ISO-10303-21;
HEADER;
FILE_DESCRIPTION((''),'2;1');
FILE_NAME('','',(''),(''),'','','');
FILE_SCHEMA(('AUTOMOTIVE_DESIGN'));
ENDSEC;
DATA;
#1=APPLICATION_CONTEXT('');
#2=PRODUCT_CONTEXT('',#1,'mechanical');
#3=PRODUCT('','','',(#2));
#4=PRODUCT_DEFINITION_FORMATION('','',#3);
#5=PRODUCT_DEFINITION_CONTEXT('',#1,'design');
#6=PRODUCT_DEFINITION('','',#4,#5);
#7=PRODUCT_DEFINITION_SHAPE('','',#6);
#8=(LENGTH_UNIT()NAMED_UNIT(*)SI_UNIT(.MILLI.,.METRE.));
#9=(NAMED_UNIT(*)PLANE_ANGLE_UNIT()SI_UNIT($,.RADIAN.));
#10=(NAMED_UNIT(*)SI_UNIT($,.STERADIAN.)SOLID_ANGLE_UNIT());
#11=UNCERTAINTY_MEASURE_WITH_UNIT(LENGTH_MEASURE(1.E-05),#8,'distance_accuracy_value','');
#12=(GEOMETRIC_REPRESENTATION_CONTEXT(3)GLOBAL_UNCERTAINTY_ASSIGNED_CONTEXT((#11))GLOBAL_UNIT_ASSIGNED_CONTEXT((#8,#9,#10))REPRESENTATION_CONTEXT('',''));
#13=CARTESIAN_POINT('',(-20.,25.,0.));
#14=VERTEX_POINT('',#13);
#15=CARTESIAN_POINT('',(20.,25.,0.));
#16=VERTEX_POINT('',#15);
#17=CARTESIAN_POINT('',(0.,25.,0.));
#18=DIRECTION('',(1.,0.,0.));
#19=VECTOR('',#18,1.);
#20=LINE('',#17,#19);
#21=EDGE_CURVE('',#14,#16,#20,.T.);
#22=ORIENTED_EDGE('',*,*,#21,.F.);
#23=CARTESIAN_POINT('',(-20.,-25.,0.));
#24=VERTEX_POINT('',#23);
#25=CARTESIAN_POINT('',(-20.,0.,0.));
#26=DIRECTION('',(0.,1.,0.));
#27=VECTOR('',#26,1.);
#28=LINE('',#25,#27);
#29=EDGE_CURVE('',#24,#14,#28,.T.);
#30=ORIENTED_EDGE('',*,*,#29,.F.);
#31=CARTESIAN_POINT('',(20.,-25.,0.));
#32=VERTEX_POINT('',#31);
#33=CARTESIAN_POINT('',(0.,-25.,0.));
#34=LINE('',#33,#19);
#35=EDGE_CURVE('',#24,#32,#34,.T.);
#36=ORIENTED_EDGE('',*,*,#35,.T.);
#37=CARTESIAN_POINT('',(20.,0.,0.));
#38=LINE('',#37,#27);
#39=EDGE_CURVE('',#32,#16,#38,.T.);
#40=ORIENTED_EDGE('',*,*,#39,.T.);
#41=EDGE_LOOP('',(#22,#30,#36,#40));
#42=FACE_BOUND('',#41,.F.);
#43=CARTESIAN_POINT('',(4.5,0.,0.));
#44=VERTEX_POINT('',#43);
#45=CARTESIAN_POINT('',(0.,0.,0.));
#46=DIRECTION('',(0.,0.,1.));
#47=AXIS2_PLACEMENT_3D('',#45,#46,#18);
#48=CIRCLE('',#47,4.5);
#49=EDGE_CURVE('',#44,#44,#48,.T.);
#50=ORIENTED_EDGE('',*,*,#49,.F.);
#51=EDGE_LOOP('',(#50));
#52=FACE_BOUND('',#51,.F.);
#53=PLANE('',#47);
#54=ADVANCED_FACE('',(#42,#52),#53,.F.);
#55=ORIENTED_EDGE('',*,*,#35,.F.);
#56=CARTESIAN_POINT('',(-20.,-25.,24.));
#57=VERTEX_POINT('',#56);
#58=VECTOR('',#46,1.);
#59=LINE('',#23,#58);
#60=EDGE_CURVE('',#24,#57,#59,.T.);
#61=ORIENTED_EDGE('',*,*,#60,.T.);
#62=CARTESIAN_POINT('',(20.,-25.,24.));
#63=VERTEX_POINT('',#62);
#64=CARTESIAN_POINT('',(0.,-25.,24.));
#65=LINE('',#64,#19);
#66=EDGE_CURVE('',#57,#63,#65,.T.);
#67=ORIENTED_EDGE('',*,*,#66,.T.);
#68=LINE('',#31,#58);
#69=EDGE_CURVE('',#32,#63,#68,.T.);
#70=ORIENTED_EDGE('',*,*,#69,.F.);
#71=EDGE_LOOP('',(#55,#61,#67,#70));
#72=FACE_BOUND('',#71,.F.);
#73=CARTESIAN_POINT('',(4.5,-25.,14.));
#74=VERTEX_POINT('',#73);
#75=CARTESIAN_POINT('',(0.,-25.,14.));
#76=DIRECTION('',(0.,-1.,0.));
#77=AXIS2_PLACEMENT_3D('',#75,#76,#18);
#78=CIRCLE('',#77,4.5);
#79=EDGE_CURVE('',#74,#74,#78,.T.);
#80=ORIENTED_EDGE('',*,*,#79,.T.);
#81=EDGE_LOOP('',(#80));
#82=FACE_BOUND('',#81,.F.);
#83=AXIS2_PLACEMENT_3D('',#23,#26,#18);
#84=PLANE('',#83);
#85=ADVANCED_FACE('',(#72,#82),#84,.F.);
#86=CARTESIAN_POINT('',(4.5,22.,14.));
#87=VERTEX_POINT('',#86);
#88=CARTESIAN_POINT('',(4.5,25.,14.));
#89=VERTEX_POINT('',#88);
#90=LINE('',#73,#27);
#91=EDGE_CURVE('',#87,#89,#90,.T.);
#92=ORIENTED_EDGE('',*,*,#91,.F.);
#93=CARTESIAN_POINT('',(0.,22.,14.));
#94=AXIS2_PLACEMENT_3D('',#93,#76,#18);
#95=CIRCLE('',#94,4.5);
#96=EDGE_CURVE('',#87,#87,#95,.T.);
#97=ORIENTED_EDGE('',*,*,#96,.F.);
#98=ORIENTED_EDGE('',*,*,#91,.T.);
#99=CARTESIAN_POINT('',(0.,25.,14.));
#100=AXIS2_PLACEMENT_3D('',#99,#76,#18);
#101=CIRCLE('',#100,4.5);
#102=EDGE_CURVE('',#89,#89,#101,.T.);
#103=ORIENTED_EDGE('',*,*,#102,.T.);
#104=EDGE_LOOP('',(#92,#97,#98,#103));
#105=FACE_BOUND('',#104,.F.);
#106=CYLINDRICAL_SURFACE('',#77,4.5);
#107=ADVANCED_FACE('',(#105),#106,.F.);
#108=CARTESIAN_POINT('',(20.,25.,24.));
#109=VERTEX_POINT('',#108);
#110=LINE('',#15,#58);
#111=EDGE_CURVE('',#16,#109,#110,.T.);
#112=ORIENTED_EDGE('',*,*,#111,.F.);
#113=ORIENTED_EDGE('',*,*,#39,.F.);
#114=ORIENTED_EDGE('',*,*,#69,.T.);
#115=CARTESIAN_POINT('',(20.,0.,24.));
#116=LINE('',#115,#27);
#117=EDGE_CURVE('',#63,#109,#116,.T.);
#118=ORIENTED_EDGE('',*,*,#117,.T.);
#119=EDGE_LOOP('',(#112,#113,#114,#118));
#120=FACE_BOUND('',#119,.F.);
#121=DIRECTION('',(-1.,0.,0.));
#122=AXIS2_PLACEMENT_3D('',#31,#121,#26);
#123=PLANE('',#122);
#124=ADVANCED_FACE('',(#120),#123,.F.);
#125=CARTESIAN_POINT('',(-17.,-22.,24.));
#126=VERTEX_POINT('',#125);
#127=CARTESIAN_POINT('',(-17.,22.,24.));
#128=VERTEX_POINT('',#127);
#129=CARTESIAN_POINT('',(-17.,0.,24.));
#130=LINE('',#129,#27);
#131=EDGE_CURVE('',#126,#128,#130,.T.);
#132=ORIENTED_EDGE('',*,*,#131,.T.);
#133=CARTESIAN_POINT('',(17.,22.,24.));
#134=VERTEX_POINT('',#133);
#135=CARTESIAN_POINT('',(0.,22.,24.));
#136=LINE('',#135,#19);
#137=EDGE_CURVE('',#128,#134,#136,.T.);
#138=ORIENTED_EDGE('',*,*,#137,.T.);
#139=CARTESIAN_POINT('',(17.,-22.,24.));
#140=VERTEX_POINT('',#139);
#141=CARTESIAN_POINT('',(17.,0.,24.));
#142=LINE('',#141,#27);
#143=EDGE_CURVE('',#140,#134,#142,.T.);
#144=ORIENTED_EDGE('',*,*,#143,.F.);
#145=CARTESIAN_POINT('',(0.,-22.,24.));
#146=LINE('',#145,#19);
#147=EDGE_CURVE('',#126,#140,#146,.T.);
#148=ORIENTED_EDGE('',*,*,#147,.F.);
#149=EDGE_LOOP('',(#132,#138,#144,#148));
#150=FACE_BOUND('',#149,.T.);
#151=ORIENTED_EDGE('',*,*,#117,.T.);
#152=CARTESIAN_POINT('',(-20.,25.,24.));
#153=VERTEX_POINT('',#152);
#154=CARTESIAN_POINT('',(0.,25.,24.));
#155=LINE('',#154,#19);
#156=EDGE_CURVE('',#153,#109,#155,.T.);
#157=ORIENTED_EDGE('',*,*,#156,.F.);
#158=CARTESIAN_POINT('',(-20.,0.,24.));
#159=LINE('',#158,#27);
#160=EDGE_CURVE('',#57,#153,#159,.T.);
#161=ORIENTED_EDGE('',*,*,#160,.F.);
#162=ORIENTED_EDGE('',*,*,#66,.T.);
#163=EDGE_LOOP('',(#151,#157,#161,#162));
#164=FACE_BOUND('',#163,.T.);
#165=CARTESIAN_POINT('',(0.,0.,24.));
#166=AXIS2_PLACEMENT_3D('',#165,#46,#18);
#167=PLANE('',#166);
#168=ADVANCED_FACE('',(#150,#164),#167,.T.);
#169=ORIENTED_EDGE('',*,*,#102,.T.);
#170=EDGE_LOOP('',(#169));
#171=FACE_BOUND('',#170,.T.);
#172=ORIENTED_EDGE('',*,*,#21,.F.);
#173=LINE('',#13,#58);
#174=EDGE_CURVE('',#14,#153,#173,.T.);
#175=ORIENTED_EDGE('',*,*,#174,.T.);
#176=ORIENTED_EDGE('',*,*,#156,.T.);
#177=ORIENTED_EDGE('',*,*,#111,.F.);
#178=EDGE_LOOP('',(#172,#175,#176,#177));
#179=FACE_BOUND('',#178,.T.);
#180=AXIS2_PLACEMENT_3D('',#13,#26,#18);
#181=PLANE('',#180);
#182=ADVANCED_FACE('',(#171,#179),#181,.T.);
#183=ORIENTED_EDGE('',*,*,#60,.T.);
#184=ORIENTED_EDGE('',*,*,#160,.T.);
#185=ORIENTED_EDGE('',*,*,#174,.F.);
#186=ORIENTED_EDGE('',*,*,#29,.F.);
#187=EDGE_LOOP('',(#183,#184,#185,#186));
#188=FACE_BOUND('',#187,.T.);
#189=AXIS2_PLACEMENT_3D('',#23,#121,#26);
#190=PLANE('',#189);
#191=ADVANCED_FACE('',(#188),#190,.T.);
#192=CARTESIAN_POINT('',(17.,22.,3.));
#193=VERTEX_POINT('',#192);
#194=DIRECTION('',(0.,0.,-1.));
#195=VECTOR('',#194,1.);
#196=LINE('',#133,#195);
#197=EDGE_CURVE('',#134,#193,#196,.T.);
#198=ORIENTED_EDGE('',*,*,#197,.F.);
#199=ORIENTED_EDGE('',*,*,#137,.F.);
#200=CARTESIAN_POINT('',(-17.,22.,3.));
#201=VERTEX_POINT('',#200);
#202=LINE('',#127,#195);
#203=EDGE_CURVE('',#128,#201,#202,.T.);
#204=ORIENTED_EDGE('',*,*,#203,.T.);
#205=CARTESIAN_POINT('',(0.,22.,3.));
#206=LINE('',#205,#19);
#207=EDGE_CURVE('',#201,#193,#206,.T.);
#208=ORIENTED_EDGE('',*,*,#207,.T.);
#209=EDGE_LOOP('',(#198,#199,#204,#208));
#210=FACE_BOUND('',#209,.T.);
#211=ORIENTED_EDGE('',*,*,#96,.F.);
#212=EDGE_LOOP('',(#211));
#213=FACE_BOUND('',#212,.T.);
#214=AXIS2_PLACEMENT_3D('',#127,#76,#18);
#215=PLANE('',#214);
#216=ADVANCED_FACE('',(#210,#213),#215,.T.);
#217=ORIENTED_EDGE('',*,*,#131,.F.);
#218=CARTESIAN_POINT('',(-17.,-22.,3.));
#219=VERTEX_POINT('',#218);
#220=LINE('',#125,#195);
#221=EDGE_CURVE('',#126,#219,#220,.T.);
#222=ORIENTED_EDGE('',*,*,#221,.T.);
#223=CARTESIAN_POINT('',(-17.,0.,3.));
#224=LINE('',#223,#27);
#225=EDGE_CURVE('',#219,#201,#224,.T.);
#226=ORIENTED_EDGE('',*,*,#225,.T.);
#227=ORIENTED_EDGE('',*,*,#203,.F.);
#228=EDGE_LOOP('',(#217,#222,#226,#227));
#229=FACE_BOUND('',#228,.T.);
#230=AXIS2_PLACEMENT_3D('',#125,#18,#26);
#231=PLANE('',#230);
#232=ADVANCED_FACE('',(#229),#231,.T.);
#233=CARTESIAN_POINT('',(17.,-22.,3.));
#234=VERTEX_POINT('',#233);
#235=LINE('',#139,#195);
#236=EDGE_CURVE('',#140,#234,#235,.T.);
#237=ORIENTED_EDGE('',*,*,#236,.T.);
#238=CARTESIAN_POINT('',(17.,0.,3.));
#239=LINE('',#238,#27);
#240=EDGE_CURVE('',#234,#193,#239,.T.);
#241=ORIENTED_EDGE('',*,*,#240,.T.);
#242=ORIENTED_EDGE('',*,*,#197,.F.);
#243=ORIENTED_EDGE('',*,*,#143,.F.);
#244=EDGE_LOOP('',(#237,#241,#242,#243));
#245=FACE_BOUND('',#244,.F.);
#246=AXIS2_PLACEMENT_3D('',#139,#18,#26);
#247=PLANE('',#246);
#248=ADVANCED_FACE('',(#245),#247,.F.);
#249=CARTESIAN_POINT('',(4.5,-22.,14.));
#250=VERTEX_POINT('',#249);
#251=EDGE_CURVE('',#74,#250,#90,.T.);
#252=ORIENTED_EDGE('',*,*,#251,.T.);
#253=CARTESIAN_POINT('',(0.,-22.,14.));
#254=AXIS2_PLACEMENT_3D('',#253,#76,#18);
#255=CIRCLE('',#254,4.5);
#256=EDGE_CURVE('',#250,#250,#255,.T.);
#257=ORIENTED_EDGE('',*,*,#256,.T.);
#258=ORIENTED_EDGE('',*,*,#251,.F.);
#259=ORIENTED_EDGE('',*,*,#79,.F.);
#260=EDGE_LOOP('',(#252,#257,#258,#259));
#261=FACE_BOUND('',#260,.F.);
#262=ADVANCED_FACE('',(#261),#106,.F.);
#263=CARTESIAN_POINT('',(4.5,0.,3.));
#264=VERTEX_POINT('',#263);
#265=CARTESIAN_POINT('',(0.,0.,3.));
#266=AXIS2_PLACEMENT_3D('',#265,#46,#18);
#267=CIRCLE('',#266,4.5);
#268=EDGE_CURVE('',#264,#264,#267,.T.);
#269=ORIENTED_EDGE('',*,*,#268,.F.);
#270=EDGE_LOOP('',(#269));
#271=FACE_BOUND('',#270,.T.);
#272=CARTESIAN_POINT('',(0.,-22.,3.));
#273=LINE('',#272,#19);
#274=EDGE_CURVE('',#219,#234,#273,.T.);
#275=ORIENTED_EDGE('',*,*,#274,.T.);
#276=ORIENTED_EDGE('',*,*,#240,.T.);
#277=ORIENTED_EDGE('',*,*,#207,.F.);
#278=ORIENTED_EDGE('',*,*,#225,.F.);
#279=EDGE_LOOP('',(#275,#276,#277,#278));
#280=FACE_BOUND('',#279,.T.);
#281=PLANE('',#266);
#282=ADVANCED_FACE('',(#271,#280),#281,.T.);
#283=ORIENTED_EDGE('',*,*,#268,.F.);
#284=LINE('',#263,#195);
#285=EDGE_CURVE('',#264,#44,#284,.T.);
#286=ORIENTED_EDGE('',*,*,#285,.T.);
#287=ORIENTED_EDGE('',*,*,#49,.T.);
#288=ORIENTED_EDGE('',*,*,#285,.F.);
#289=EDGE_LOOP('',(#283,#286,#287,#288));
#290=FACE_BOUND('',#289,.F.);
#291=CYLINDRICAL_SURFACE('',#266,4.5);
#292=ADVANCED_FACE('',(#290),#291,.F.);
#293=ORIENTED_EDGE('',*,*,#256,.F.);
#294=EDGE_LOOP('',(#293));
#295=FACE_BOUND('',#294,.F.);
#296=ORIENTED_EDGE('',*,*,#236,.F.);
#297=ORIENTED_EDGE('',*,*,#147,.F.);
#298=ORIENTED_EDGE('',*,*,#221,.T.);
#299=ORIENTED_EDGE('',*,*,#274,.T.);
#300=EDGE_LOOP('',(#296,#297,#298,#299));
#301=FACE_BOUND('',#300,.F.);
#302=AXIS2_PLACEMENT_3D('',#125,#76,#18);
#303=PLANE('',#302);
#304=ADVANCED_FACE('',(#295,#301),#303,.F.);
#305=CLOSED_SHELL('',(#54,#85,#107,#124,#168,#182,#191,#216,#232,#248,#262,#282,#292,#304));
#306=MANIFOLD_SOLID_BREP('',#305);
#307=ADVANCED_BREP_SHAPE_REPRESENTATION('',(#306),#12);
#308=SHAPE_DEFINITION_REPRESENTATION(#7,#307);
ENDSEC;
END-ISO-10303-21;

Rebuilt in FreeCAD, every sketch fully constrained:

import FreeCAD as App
import Part
import Sketcher
from FreeCAD import Vector

doc = App.newDocument("Part")
params = doc.addObject("Spreadsheet::Sheet", "Params")
for row, (alias, value) in enumerate([
    ("sketch1_width", "40 mm"),
    ("sketch1_height", "50 mm"),
    ("pad1_length", "24 mm"),
    ("sketch2_width", "34 mm"),
    ("sketch2_height", "44 mm"),
    ("pocket1_length", "21 mm"),
    ("sketch3_diameter", "9 mm"),
    ("sketch4_diameter", "9 mm"),
], start=1):
    params.set(f"A{row}", alias)
    params.set(f"B{row}", "=" + value)
    params.setAlias(f"B{row}", alias)

body = doc.addObject("PartDesign::Body", "Body")

sketch1 = doc.addObject("Sketcher::SketchObject", "Sketch")
body.addObject(sketch1)
sketch1.AttachmentSupport = (doc.XY_Plane, [""])
sketch1.MapMode = "FlatFace"
sketch1.addGeometry([
    Part.LineSegment(Vector(-20, 25, 0), Vector(-20, -25, 0)),
    Part.LineSegment(Vector(-20, -25, 0), Vector(20, -25, 0)),
    Part.LineSegment(Vector(20, -25, 0), Vector(20, 25, 0)),
    Part.LineSegment(Vector(20, 25, 0), Vector(-20, 25, 0)),
], False)
sketch1.addConstraint([
    Sketcher.Constraint("Coincident", 0, 2, 1, 1),
    Sketcher.Constraint("Coincident", 1, 2, 2, 1),
    Sketcher.Constraint("Coincident", 2, 2, 3, 1),
    Sketcher.Constraint("Coincident", 3, 2, 0, 1),
    Sketcher.Constraint("Vertical", 0),
    Sketcher.Constraint("Horizontal", 1),
    Sketcher.Constraint("Vertical", 2),
    Sketcher.Constraint("Horizontal", 3),
    Sketcher.Constraint("Symmetric", 0, 2, 2, 2, -1, 1),
    Sketcher.Constraint("DistanceX", 1, 1, 1, 2, 40.0),
    Sketcher.Constraint("DistanceY", 0, 2, 0, 1, 50.0),
])
sketch1.setExpression("Constraints[9]", "Params.sketch1_width")
sketch1.setExpression("Constraints[10]", "Params.sketch1_height")
pad1 = doc.addObject("PartDesign::Pad", "Pad")
body.addObject(pad1)
pad1.Profile = sketch1
pad1.setExpression("Length", "Params.pad1_length")

sketch2 = doc.addObject("Sketcher::SketchObject", "Sketch001")
body.addObject(sketch2)
sketch2.AttachmentSupport = (doc.XY_Plane, [""])
sketch2.MapMode = "FlatFace"
sketch2.AttachmentOffset = App.Placement(Vector(0, 0, 24), App.Rotation())
sketch2.addGeometry([
    Part.LineSegment(Vector(-17, 22, 0), Vector(-17, -22, 0)),
    Part.LineSegment(Vector(-17, -22, 0), Vector(17, -22, 0)),
    Part.LineSegment(Vector(17, -22, 0), Vector(17, 22, 0)),
    Part.LineSegment(Vector(17, 22, 0), Vector(-17, 22, 0)),
], False)
sketch2.addConstraint([
    Sketcher.Constraint("Coincident", 0, 2, 1, 1),
    Sketcher.Constraint("Coincident", 1, 2, 2, 1),
    Sketcher.Constraint("Coincident", 2, 2, 3, 1),
    Sketcher.Constraint("Coincident", 3, 2, 0, 1),
    Sketcher.Constraint("Vertical", 0),
    Sketcher.Constraint("Horizontal", 1),
    Sketcher.Constraint("Vertical", 2),
    Sketcher.Constraint("Horizontal", 3),
    Sketcher.Constraint("Symmetric", 0, 2, 2, 2, -1, 1),
    Sketcher.Constraint("DistanceX", 1, 1, 1, 2, 34.0),
    Sketcher.Constraint("DistanceY", 0, 2, 0, 1, 44.0),
])
sketch2.setExpression("Constraints[9]", "Params.sketch2_width")
sketch2.setExpression("Constraints[10]", "Params.sketch2_height")
pocket1 = doc.addObject("PartDesign::Pocket", "Pocket")
body.addObject(pocket1)
pocket1.Profile = sketch2
pocket1.setExpression("Length", "Params.pocket1_length")

sketch3 = doc.addObject("Sketcher::SketchObject", "Sketch002")
body.addObject(sketch3)
sketch3.AttachmentSupport = (doc.XZ_Plane, [""])
sketch3.MapMode = "FlatFace"
sketch3.AttachmentOffset = App.Placement(Vector(0, 0, 25), App.Rotation())
sketch3.addGeometry(Part.Circle(Vector(0, 14, 0), Vector(0, 0, 1), 4.5), False)
sketch3.addConstraint([
    Sketcher.Constraint("PointOnObject", 0, 3, -2),
    Sketcher.Constraint("Diameter", 0, 9.0),
    Sketcher.Constraint("DistanceY", -1, 1, 0, 3, 14.0),
])
sketch3.setExpression("Constraints[1]", "Params.sketch3_diameter")
pocket2 = doc.addObject("PartDesign::Pocket", "Pocket001")
body.addObject(pocket2)
pocket2.Profile = sketch3
pocket2.Type = "ThroughAll"

sketch4 = doc.addObject("Sketcher::SketchObject", "Sketch003")
body.addObject(sketch4)
sketch4.AttachmentSupport = (doc.XY_Plane, [""])
sketch4.MapMode = "FlatFace"
sketch4.AttachmentOffset = App.Placement(Vector(0, 0, 3), App.Rotation())
sketch4.addGeometry(Part.Circle(Vector(0, 0, 0), Vector(0, 0, 1), 4.5), False)
sketch4.addConstraint([
    Sketcher.Constraint("Coincident", 0, 3, -1, 1),
    Sketcher.Constraint("Diameter", 0, 9.0),
])
sketch4.setExpression("Constraints[1]", "Params.sketch4_diameter")
pocket3 = doc.addObject("PartDesign::Pocket", "Pocket002")
body.addObject(pocket3)
pocket3.Profile = sketch4
pocket3.Type = "ThroughAll"

doc.recompute()
